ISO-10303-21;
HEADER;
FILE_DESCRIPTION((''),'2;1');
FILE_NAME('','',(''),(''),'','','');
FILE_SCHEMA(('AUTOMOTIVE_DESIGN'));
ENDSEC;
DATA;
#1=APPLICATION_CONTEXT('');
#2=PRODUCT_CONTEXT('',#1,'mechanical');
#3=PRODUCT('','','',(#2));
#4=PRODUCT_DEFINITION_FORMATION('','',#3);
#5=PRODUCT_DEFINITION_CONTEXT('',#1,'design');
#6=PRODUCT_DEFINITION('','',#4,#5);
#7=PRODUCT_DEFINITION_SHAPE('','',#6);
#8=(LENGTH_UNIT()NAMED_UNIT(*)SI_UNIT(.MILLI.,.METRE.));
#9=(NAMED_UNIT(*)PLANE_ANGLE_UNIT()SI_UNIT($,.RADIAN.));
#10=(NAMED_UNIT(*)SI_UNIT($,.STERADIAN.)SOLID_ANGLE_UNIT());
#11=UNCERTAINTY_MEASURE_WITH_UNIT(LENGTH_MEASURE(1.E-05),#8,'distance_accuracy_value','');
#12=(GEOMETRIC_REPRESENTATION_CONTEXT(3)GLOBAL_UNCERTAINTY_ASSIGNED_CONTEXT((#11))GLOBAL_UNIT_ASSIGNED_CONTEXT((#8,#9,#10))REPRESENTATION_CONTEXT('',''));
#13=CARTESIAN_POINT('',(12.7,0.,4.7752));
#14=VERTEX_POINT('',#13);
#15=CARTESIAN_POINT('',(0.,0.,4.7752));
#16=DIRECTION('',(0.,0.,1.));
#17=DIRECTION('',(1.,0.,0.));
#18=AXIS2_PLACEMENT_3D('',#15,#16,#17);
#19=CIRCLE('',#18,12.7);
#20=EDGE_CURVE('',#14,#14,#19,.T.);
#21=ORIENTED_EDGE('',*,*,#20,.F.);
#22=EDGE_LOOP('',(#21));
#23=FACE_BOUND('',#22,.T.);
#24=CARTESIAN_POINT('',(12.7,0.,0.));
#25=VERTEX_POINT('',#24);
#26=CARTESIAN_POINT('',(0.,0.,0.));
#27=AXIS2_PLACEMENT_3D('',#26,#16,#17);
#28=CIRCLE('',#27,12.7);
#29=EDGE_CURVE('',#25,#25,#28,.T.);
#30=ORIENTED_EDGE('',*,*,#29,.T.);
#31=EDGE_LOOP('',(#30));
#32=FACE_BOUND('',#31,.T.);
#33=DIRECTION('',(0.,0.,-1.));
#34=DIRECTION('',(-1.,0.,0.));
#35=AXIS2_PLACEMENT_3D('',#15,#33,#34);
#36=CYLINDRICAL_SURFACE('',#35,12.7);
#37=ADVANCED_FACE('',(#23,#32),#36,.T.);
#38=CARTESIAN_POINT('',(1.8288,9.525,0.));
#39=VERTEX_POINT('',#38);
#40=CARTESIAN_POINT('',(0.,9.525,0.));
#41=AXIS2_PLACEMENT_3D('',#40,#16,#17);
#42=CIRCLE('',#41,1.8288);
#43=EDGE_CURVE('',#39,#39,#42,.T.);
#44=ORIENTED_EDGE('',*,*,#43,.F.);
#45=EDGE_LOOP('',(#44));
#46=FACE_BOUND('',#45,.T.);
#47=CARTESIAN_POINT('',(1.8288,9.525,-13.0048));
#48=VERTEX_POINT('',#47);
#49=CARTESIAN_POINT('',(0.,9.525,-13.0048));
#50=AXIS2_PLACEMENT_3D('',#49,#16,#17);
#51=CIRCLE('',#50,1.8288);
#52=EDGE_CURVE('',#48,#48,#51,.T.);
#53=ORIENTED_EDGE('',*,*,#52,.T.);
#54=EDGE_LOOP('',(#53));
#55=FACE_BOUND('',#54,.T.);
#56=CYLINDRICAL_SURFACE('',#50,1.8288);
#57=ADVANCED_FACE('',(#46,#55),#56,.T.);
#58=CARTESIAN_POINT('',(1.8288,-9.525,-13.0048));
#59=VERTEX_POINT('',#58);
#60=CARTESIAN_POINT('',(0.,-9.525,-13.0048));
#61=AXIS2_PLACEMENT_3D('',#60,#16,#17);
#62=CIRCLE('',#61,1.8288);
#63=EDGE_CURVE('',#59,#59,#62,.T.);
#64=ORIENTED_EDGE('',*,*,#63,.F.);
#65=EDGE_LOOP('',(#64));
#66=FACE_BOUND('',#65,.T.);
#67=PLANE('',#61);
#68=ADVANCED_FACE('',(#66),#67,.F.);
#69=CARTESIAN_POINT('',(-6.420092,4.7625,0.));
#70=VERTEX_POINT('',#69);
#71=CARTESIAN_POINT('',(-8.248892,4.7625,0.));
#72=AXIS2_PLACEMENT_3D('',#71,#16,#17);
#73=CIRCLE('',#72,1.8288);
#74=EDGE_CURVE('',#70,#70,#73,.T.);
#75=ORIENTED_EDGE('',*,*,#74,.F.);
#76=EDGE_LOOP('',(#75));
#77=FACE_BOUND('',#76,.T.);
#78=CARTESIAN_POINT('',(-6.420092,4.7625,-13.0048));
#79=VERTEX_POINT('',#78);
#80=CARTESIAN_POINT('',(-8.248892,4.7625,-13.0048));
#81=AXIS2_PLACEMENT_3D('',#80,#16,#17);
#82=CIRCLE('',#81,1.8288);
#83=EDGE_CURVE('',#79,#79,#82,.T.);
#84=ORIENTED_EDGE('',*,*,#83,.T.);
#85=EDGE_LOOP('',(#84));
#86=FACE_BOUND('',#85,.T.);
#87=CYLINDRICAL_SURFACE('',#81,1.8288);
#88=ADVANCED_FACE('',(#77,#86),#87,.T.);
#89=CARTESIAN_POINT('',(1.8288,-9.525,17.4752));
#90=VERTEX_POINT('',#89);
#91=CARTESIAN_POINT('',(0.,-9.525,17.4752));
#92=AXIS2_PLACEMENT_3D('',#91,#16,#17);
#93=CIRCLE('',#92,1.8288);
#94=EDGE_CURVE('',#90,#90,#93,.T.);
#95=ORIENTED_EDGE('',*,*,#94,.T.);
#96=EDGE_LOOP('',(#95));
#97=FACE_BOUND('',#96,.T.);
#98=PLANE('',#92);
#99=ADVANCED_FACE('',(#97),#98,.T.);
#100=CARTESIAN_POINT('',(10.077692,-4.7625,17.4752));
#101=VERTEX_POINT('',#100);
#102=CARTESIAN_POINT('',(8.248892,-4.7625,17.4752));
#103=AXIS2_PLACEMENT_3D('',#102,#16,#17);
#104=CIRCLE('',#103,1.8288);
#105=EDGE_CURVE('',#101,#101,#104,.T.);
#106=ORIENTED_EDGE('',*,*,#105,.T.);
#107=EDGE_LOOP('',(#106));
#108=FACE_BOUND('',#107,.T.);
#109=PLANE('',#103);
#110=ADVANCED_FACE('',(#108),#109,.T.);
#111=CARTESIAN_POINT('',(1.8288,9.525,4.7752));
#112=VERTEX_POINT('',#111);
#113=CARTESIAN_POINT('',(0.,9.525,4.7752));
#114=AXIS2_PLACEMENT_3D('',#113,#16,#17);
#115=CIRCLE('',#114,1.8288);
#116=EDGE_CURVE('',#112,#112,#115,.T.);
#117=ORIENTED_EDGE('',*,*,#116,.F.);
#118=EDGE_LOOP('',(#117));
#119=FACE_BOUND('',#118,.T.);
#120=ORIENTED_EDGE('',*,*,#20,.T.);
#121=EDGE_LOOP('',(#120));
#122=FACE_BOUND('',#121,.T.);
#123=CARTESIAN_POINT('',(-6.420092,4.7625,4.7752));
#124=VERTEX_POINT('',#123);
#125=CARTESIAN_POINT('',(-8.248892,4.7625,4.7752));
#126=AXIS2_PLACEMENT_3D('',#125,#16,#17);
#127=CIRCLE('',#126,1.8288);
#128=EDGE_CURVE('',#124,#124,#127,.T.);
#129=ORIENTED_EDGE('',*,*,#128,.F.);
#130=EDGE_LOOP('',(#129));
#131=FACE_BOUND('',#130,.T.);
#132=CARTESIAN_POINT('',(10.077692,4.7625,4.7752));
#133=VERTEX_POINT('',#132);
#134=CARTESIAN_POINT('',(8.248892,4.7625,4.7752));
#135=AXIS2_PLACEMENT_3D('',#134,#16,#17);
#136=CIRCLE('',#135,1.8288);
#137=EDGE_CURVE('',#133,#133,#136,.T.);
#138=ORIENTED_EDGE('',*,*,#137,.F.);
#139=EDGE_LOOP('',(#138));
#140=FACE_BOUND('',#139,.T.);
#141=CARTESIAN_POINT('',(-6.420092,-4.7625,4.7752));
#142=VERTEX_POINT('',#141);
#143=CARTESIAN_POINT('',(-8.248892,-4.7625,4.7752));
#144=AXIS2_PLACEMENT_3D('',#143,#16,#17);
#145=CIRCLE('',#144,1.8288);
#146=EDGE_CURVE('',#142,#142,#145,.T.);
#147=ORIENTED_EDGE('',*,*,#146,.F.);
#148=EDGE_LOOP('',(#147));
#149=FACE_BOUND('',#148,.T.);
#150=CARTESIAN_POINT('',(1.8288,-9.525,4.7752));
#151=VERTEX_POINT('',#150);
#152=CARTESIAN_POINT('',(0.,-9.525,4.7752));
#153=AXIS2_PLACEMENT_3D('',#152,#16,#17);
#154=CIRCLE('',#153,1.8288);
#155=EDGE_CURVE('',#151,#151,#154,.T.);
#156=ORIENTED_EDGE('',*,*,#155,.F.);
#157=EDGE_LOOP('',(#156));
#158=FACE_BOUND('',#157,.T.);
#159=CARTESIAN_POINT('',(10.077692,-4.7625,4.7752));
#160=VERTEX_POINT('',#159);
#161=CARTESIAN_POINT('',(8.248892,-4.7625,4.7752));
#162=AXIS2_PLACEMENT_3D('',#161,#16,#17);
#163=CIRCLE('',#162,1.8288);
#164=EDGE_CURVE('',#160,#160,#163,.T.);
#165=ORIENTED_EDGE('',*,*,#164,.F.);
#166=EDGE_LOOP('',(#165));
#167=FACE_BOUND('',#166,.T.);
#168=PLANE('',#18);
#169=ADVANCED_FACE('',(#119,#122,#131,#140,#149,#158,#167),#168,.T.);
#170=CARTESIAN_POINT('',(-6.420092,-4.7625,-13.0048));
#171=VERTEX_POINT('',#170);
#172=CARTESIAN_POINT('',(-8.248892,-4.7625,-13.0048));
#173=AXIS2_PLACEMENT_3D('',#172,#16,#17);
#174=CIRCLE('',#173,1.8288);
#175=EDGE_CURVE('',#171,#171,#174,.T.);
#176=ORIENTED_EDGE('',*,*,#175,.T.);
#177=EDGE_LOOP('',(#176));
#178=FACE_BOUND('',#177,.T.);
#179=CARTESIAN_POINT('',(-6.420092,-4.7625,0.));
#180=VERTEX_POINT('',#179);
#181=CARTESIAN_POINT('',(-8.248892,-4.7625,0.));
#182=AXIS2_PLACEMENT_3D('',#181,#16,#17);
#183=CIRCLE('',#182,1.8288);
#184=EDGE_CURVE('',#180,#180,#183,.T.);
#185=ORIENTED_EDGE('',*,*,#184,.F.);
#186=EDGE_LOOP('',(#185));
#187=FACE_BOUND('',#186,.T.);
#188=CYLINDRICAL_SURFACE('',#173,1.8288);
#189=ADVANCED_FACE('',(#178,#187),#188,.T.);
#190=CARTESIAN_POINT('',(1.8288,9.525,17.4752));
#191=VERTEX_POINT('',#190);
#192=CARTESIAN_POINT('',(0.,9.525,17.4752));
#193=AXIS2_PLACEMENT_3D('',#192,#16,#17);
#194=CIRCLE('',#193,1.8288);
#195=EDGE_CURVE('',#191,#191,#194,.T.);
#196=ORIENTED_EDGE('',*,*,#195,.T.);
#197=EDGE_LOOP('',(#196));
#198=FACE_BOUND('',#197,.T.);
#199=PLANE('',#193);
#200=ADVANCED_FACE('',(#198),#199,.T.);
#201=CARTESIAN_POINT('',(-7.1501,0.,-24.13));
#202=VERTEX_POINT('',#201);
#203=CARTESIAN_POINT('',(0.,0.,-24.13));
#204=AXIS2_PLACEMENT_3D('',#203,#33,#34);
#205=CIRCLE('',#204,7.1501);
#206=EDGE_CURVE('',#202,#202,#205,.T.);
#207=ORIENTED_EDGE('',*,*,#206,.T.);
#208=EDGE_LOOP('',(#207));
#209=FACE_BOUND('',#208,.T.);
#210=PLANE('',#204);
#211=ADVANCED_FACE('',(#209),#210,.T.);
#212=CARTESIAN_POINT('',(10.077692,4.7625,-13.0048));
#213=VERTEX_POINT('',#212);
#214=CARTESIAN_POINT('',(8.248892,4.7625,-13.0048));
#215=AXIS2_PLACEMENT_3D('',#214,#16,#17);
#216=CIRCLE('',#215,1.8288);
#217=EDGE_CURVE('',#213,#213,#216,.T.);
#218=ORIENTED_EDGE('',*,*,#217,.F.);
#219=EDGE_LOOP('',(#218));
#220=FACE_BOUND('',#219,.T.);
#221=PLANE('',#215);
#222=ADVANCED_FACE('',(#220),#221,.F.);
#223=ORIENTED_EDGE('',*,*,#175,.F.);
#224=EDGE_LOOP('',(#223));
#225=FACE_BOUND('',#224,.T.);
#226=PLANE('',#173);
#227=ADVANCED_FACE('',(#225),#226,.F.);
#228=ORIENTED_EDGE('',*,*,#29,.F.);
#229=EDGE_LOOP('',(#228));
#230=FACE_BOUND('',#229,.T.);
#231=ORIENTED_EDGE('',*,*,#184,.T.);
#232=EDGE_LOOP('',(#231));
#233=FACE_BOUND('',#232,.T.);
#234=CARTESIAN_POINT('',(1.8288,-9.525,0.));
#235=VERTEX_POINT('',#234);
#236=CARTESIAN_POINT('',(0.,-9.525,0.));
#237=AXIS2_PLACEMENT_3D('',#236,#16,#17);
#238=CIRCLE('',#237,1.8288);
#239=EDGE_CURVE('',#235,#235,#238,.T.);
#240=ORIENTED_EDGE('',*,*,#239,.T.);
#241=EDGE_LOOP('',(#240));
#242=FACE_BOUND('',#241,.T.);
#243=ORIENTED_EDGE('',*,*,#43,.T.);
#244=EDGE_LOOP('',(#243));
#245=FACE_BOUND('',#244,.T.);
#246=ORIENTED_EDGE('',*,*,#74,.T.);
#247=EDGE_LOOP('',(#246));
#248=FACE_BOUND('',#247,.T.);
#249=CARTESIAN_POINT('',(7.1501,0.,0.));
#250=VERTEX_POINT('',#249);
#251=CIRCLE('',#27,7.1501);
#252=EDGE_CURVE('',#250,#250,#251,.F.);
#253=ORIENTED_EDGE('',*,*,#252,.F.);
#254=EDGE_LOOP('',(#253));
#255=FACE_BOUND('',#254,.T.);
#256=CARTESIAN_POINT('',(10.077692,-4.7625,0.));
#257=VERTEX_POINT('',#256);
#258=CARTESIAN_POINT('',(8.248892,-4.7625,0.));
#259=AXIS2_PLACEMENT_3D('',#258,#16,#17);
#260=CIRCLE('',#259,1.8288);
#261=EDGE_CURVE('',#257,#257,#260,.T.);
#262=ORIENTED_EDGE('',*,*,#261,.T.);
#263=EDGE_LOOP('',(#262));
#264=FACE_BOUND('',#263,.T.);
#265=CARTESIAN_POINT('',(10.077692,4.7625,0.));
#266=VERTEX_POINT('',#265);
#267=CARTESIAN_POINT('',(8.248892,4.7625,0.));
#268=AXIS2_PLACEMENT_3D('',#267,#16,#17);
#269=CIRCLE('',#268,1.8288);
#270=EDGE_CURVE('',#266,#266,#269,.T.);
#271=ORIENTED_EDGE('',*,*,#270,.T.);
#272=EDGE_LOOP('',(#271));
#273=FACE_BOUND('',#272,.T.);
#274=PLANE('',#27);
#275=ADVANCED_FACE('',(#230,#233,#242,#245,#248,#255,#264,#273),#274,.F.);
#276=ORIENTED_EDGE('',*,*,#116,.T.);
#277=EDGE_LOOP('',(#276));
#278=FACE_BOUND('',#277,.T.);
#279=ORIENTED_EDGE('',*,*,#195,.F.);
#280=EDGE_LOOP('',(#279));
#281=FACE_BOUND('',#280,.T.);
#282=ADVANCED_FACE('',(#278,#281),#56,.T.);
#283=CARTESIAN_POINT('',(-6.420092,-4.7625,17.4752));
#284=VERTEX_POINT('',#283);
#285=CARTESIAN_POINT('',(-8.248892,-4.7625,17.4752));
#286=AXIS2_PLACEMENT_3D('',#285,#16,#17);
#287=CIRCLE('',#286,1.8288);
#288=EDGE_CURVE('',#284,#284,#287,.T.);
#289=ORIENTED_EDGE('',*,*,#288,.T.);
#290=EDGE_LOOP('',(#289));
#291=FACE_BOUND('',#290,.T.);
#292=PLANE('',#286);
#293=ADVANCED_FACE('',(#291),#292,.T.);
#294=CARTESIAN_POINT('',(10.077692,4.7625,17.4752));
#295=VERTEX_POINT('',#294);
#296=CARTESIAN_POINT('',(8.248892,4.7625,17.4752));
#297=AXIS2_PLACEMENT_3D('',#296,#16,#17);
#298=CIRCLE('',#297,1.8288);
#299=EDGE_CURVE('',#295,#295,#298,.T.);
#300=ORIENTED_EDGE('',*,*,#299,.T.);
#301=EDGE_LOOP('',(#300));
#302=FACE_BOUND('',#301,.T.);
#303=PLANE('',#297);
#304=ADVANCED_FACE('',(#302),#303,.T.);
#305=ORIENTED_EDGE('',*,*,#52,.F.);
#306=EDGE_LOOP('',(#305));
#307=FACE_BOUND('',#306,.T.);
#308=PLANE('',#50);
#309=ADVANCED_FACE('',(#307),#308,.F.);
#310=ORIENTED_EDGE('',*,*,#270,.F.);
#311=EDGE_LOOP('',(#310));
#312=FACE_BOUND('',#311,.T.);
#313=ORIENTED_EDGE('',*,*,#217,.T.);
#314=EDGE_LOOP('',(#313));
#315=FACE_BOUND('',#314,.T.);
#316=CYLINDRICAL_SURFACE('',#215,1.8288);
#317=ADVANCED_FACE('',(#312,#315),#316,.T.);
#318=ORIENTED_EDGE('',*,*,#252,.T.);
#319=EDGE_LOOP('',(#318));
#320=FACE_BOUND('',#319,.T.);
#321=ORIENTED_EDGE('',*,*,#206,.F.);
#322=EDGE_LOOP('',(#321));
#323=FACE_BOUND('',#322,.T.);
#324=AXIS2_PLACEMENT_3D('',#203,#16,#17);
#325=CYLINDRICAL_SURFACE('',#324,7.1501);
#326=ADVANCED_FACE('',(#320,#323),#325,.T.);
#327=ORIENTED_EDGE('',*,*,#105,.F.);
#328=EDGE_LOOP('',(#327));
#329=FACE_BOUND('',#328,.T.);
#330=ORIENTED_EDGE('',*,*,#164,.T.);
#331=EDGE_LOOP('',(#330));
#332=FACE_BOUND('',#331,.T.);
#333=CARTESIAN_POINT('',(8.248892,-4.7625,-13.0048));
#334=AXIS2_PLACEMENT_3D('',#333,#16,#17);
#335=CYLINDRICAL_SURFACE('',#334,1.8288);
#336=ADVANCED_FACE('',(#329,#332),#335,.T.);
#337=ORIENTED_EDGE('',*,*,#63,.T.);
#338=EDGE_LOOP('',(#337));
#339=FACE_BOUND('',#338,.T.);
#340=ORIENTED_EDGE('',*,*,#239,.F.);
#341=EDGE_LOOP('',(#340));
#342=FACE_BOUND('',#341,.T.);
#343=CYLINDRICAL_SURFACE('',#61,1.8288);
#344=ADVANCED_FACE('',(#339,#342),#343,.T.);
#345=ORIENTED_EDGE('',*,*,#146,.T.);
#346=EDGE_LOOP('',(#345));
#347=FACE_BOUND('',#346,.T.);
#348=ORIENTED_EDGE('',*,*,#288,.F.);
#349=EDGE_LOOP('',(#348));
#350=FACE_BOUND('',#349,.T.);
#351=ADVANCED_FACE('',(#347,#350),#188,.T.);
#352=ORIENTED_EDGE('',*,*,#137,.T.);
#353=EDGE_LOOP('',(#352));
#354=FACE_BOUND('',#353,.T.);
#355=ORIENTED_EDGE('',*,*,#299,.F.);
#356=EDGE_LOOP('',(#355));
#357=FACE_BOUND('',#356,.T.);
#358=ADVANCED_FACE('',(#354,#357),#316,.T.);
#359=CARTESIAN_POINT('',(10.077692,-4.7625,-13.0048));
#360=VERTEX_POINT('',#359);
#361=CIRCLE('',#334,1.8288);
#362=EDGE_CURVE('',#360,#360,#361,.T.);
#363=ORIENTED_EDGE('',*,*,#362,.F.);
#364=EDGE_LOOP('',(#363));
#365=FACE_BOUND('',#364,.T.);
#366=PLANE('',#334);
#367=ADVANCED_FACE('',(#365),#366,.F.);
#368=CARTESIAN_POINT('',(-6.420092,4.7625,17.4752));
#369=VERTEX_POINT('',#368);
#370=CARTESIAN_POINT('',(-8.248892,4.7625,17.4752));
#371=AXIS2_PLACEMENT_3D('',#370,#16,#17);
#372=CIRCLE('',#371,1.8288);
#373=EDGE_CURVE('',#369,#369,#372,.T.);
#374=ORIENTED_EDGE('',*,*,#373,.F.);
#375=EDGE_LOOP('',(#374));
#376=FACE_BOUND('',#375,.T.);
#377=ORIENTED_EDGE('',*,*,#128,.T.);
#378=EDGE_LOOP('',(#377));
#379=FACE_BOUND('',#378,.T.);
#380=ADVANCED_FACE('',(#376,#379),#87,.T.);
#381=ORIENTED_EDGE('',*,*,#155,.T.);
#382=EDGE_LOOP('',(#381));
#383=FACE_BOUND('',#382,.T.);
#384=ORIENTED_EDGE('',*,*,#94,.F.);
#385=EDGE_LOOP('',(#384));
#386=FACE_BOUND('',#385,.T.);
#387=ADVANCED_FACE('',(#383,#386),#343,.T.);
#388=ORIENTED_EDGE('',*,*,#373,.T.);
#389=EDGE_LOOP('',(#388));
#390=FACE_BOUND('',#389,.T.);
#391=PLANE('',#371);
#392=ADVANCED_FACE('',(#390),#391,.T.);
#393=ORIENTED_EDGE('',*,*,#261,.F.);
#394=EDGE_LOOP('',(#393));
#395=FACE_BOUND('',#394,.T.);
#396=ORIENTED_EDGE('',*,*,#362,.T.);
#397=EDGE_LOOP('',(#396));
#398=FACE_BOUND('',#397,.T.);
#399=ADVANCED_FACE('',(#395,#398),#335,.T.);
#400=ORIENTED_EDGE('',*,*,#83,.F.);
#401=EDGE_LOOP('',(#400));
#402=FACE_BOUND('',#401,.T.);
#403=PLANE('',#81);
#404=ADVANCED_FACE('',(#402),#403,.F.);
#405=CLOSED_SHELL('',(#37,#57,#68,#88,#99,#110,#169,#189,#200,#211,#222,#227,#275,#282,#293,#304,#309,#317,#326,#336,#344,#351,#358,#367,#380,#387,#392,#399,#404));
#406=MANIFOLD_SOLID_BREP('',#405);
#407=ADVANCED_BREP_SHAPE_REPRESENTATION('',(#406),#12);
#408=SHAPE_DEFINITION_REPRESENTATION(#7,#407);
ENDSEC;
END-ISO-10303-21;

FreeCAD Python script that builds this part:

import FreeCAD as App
import Part
import Sketcher
from FreeCAD import Vector
Q = App.Units.Quantity

doc = App.newDocument("Part")
body = doc.addObject("PartDesign::Body", "Body")

# Sketch on XY plane
sketch1 = body.newObject("Sketcher::SketchObject", "Sketch")
sketch1.AttachmentSupport = (doc.getObject("XY_Plane"), [""])
sketch1.MapMode = "FlatFace"
sketch1.addGeometry(Part.Circle(Vector(0, 0, 0), Vector(0, 0, 1), 12.7), False)
sketch1.addConstraint(Sketcher.Constraint("Coincident", 0, 3, -1, 1))
sketch1.addConstraint(Sketcher.Constraint("Diameter", 0, Q("1 in")))
pad1 = body.newObject("PartDesign::Pad", "Pad")
pad1.Profile = sketch1
pad1.Length = Q("0.188 in")

# Sketch on XY plane
sketch2 = body.newObject("Sketcher::SketchObject", "Sketch001")
sketch2.AttachmentSupport = (doc.getObject("XY_Plane"), [""])
sketch2.MapMode = "FlatFace"
sketch2.addGeometry(Part.Circle(Vector(0, 0, 0), Vector(0, 0, 1), 7.1501), False)
sketch2.addConstraint(Sketcher.Constraint("Coincident", 0, 3, -1, 1))
sketch2.addConstraint(Sketcher.Constraint("Diameter", 0, Q("0.563 in")))
pad2 = body.newObject("PartDesign::Pad", "Pad001")
pad2.Profile = sketch2
pad2.Length = Q("0.95 in")
pad2.Reversed = True

# Sketch on XY plane
sketch3 = body.newObject("Sketcher::SketchObject", "Sketch002")
sketch3.AttachmentSupport = (doc.getObject("XY_Plane"), [""])
sketch3.MapMode = "FlatFace"
sketch3.AttachmentOffset = App.Placement(Vector(0, 0, 0.188 * 25.4), App.Rotation())
sketch3.addGeometry(Part.Circle(Vector(0, 9.525, 0), Vector(0, 0, 1), 1.8288), False)
sketch3.addGeometry(Part.Circle(Vector(8.248892, 4.7625, 0), Vector(0, 0, 1), 1.8288), False)
sketch3.addGeometry(Part.Circle(Vector(8.248892, -4.7625, 0), Vector(0, 0, 1), 1.8288), False)
sketch3.addGeometry(Part.Circle(Vector(0, -9.525, 0), Vector(0, 0, 1), 1.8288), False)
sketch3.addGeometry(Part.Circle(Vector(-8.248892, -4.7625, 0), Vector(0, 0, 1), 1.8288), False)
sketch3.addGeometry(Part.Circle(Vector(-8.248892, 4.7625, 0), Vector(0, 0, 1), 1.8288), False)
sketch3.addConstraint(Sketcher.Constraint("Equal", 0, 1))
sketch3.addConstraint(Sketcher.Constraint("Equal", 1, 2))
sketch3.addConstraint(Sketcher.Constraint("Equal", 2, 3))
sketch3.addConstraint(Sketcher.Constraint("Equal", 3, 4))
sketch3.addConstraint(Sketcher.Constraint("Equal", 4, 5))
sketch3.addConstraint(Sketcher.Constraint("Symmetric", 0, 3, 3, 3, -1, 1))
sketch3.addConstraint(Sketcher.Constraint("Symmetric", 1, 3, 4, 3, -1, 1))
sketch3.addConstraint(Sketcher.Constraint("Symmetric", 2, 3, 5, 3, -1, 1))
sketch3.addConstraint(Sketcher.Constraint("Symmetric", 2, 3, 4, 3, -2))
sketch3.addConstraint(Sketcher.Constraint("PointOnObject", 0, 3, -2))
sketch3.addConstraint(Sketcher.Constraint("Diameter", 0, Q("0.144 in")))
sketch3.addConstraint(Sketcher.Constraint("DistanceY", 3, 3, 0, 3, Q("0.75 in")))
sketch3.addConstraint(Sketcher.Constraint("DistanceY", -1, 1, 1, 3, Q("0.1875 in")))
sketch3.addConstraint(Sketcher.Constraint("DistanceX", -1, 1, 1, 3, 8.248892))
pad3 = body.newObject("PartDesign::Pad", "Pad002")
pad3.Profile = sketch3
pad3.Type = "TwoLengths"
pad3.Length = Q("0.5 in")
pad3.Length2 = Q("0.7 in")

doc.recompute()
